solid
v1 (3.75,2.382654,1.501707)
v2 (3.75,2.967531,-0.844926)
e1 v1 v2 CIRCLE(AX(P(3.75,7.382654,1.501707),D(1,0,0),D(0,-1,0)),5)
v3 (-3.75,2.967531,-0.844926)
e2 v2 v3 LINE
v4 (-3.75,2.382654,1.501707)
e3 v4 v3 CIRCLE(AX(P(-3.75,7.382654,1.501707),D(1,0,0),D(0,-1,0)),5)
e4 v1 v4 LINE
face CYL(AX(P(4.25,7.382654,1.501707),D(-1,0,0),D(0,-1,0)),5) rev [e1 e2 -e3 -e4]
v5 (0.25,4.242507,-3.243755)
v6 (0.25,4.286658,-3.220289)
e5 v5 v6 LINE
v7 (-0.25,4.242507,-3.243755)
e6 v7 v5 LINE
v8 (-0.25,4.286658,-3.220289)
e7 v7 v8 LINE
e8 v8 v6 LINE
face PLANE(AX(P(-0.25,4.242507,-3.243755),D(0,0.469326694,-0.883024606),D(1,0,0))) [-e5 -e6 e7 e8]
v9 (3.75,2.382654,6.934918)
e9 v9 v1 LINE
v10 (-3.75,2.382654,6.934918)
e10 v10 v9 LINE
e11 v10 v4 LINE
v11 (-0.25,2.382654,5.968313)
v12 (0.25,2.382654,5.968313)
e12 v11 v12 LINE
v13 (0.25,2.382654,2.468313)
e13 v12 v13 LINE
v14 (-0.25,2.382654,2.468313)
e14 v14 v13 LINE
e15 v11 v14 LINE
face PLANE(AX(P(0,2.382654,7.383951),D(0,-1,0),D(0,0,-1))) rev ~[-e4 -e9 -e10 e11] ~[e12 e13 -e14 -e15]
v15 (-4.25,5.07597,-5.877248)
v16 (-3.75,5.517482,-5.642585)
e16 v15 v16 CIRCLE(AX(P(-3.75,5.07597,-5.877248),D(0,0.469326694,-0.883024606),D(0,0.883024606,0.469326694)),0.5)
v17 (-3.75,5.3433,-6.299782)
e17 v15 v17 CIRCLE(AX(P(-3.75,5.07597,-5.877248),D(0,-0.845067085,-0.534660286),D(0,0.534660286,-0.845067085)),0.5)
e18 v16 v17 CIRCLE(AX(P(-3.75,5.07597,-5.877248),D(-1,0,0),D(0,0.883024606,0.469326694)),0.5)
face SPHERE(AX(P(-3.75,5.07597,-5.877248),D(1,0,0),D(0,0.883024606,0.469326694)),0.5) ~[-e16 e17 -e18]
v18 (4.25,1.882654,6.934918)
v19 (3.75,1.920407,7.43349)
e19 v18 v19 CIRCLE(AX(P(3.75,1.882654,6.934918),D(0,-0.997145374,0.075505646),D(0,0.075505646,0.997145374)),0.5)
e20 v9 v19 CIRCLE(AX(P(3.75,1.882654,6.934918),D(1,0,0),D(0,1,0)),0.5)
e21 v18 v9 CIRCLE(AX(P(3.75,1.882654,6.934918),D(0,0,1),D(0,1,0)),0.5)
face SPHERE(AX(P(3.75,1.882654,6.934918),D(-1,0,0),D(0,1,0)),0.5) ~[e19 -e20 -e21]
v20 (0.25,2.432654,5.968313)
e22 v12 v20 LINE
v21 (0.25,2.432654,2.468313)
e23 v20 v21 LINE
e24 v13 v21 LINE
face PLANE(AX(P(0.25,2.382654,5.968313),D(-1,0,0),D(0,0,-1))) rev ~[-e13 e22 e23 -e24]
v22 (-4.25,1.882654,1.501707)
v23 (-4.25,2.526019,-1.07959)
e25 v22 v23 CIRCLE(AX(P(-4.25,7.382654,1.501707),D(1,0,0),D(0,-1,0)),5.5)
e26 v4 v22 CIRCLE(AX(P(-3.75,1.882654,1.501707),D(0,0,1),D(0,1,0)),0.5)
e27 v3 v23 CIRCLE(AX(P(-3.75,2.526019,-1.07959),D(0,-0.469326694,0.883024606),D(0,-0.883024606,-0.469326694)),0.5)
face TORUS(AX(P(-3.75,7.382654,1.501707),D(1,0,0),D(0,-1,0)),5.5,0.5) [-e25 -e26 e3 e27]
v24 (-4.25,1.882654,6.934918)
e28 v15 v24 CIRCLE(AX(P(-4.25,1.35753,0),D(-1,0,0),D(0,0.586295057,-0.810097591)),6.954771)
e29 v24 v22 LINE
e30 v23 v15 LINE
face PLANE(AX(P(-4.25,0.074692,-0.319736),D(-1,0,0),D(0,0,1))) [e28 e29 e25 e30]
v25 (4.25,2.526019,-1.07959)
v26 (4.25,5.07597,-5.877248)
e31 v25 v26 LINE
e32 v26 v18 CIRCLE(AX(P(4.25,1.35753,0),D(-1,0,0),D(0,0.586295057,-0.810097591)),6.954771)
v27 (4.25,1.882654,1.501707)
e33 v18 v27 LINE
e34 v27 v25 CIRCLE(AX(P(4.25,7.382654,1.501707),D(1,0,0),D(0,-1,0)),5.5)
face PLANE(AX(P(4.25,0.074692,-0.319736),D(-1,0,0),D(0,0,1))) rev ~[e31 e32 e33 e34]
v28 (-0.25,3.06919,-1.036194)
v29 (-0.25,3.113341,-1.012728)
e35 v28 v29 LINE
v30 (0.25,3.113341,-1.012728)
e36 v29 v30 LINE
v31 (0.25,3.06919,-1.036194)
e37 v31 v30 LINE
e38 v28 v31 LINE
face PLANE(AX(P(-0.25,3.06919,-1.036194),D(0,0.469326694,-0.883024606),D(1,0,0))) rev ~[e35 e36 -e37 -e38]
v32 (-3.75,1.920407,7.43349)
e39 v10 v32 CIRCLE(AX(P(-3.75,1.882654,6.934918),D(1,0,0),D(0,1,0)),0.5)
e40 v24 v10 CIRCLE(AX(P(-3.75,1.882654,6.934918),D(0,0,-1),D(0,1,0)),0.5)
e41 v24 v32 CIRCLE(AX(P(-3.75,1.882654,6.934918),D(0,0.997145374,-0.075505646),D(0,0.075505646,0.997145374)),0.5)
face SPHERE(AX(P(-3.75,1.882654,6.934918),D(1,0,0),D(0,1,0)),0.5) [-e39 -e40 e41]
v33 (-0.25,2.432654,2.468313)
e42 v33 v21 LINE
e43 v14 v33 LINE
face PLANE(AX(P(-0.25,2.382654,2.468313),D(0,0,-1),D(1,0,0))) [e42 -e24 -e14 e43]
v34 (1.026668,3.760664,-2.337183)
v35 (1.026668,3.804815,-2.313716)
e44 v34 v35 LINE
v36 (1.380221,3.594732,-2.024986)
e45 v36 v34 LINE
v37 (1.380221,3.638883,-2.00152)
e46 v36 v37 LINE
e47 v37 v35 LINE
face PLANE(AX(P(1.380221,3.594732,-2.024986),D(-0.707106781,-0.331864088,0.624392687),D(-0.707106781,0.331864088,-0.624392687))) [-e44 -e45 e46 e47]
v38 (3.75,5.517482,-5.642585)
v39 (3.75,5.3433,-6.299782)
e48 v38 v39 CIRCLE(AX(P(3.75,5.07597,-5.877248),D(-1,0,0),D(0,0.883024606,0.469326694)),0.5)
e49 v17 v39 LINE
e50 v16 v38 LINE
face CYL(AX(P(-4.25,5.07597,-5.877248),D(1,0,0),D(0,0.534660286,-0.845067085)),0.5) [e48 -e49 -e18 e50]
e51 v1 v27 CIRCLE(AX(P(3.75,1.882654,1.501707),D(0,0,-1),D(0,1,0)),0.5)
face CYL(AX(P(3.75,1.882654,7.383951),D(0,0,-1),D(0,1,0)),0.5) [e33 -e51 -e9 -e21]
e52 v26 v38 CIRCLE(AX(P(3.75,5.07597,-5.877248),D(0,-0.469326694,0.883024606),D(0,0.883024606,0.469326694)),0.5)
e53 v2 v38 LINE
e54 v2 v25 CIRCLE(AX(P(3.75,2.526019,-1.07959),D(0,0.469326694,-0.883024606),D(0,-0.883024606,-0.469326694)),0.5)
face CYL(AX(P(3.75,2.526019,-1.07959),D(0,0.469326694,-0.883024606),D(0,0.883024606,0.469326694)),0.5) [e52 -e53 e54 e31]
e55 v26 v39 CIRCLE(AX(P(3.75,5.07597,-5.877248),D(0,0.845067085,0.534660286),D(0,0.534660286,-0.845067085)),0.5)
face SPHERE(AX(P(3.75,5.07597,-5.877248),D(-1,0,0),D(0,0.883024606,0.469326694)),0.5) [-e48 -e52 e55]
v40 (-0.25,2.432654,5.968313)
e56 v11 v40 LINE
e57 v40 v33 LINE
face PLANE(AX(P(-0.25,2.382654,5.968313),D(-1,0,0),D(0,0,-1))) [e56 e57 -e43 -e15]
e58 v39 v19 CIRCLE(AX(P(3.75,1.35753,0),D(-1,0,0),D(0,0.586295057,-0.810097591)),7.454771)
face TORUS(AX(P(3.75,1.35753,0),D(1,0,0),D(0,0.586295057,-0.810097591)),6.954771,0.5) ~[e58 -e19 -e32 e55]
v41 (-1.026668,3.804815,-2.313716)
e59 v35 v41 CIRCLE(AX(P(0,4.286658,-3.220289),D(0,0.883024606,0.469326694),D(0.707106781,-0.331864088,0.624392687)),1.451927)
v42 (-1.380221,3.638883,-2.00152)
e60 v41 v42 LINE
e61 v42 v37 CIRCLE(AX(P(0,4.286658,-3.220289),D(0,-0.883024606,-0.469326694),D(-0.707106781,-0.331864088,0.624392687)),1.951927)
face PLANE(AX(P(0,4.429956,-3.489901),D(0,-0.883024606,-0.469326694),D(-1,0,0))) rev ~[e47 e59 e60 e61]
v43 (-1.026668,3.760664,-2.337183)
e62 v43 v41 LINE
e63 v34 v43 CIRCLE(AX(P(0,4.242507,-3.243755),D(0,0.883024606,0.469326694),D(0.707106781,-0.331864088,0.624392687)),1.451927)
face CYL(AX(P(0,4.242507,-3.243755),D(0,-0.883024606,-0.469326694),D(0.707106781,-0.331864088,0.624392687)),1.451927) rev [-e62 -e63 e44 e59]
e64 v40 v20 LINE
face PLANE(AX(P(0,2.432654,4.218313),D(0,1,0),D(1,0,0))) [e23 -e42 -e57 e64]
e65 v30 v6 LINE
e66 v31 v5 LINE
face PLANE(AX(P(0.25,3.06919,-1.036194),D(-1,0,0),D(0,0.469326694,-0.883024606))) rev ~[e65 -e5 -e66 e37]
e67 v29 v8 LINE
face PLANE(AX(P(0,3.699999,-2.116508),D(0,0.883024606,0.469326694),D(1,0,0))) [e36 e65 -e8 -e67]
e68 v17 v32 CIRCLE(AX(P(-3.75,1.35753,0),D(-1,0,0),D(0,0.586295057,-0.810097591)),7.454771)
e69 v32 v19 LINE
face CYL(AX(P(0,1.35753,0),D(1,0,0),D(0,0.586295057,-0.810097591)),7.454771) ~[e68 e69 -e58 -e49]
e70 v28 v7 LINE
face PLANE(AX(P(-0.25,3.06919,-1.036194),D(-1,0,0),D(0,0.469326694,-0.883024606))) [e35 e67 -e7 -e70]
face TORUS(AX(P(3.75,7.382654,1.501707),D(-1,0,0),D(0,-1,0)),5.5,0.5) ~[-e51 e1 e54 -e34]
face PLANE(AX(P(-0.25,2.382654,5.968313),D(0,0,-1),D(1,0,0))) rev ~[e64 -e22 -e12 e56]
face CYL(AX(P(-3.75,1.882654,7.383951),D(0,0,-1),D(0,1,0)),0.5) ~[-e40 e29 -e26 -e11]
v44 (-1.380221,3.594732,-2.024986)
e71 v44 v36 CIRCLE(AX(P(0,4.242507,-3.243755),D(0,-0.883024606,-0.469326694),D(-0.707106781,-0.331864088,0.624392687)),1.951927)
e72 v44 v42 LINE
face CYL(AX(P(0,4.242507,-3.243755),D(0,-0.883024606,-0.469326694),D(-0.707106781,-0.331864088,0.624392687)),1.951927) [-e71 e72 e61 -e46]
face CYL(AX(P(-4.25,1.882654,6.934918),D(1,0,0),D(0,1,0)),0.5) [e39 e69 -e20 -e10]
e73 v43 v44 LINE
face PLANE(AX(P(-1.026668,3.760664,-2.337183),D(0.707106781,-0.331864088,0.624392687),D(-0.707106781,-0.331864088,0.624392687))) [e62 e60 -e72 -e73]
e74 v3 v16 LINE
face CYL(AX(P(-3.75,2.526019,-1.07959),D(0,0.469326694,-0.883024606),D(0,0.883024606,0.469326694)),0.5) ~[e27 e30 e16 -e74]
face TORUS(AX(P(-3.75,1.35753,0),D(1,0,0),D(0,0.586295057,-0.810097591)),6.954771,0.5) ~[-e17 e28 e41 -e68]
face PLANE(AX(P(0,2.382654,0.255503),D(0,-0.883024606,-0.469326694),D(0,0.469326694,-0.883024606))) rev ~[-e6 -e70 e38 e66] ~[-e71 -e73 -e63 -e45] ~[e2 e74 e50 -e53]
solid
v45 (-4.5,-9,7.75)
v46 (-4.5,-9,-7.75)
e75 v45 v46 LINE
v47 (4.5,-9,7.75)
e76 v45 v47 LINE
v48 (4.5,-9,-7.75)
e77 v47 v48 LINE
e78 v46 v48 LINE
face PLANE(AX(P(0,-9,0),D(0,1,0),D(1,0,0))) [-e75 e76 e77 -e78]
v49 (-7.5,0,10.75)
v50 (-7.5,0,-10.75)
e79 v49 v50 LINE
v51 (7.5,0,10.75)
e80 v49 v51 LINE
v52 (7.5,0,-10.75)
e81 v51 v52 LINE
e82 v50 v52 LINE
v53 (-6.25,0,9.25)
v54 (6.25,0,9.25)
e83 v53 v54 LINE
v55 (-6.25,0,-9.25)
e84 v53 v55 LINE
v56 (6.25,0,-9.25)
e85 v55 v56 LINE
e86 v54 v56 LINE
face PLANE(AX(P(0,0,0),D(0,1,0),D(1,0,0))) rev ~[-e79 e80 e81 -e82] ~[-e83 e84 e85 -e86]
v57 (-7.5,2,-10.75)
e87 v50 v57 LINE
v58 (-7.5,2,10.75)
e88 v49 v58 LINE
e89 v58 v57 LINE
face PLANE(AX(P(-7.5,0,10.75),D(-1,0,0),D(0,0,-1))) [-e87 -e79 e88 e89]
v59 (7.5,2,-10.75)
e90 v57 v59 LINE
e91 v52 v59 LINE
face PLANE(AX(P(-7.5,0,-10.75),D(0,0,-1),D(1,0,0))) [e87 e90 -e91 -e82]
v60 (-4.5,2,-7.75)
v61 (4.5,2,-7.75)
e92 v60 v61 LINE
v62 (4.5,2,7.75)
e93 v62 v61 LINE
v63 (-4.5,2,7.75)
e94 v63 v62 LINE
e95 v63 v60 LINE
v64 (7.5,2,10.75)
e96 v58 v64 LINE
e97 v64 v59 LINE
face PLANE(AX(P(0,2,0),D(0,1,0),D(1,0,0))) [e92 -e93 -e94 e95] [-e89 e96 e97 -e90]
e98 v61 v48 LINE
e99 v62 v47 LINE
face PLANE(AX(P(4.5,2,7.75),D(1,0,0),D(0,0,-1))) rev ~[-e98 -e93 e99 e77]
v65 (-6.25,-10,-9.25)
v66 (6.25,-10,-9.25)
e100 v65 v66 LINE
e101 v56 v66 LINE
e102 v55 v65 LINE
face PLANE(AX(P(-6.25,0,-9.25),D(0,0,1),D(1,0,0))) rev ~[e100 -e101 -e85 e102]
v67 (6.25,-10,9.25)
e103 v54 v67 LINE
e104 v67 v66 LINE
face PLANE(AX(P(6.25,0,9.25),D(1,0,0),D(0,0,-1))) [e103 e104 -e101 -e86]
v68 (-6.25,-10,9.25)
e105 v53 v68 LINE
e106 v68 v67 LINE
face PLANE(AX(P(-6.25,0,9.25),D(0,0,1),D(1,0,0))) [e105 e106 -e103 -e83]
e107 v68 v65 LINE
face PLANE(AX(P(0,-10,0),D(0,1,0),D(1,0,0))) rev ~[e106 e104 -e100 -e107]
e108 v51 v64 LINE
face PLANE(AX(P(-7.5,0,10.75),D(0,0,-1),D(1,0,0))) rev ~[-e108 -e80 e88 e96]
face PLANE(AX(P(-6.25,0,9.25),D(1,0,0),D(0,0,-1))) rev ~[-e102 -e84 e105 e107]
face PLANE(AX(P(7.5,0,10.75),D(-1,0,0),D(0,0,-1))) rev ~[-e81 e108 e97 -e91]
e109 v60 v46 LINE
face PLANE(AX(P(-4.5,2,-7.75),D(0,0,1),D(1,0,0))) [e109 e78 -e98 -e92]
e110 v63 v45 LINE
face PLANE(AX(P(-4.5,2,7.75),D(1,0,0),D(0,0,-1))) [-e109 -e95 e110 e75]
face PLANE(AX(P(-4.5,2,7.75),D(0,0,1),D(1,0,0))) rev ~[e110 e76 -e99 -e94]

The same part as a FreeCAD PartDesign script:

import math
import FreeCAD as App
import Part
import Sketcher


def edges_at(feature, points):
    """Names of the edges that pass closest to the given points."""
    edges = feature.Shape.Edges
    near = lambda p: min(range(len(edges)), key=lambda i: edges[i].distToShape(Part.Vertex(*p))[0])
    return sorted({f"Edge{near(p) + 1}" for p in points})


def add_polygon(sketch, points):
    """Adds a closed chain of lines whose ends are joined by coincident constraints."""
    first, n = sketch.GeometryCount, len(points)
    for a, b in zip(points, points[1:] + points[:1]):
        sketch.addGeometry(Part.LineSegment(App.Vector(*a, 0), App.Vector(*b, 0)), False)
    for i in range(n):
        sketch.addConstraint(Sketcher.Constraint("Coincident", first + i, 2, first + (i + 1) % n, 1))

doc = App.newDocument("Part")
body = doc.addObject("PartDesign::Body", "Body")

# Sketch on XZ plane
sketch1 = doc.addObject("Sketcher::SketchObject", "Sketch")
body.addObject(sketch1)
sketch1.AttachmentSupport = (doc.XZ_Plane, [""])
sketch1.MapMode = "FlatFace"
add_polygon(sketch1, [(-6, -9), (-6, 9), (6, 9), (6, -9)])  # lines 0-3
sketch1.addConstraint([
    Sketcher.Constraint("Vertical", 0),
    Sketcher.Constraint("Horizontal", 1),
    Sketcher.Constraint("Vertical", 2),
    Sketcher.Constraint("Horizontal", 3),
    Sketcher.Constraint("Symmetric", 0, 2, 2, 2, -1, 1),
    Sketcher.Constraint("DistanceX", 1, 1, 1, 2, 12.5),
    Sketcher.Constraint("DistanceY", 0, 1, 0, 2, 18.5),
])
pad1 = doc.addObject("PartDesign::Pad", "Pad")
body.addObject(pad1)
pad1.Profile = sketch1
pad1.Length = 10

# Sketch on XZ plane
sketch2 = doc.addObject("Sketcher::SketchObject", "Sketch001")
body.addObject(sketch2)
sketch2.AttachmentSupport = (doc.XZ_Plane, [""])
sketch2.MapMode = "FlatFace"
add_polygon(sketch2, [(-8, -11), (-8, 11), (8, 11), (8, -11)])  # lines 0-3
sketch2.addConstraint([
    Sketcher.Constraint("Vertical", 0),
    Sketcher.Constraint("Horizontal", 1),
    Sketcher.Constraint("Vertical", 2),
    Sketcher.Constraint("Horizontal", 3),
    Sketcher.Constraint("Symmetric", 0, 2, 2, 2, -1, 1),
    Sketcher.Constraint("DistanceX", 1, 1, 1, 2, 15.0),
    Sketcher.Constraint("DistanceY", 0, 1, 0, 2, 21.5),
])
pad2 = doc.addObject("PartDesign::Pad", "Pad001")
body.addObject(pad2)
pad2.Profile = sketch2
pad2.Length = 2
pad2.Reversed = True

# Sketch on XZ plane
sketch3 = doc.addObject("Sketcher::SketchObject", "Sketch002")
body.addObject(sketch3)
sketch3.AttachmentSupport = (doc.XZ_Plane, [""])
sketch3.MapMode = "FlatFace"
sketch3.AttachmentOffset = App.Placement(App.Vector(0, 0, -2), App.Rotation())
add_polygon(sketch3, [(-4, -8), (-4, 8), (4, 8), (4, -8)])  # lines 0-3
sketch3.addConstraint([
    Sketcher.Constraint("Vertical", 0),
    Sketcher.Constraint("Horizontal", 1),
    Sketcher.Constraint("Vertical", 2),
    Sketcher.Constraint("Horizontal", 3),
    Sketcher.Constraint("Symmetric", 0, 2, 2, 2, -1, 1),
    Sketcher.Constraint("DistanceX", 1, 1, 1, 2, 9.0),
    Sketcher.Constraint("DistanceY", 0, 1, 0, 2, 15.5),
])
pocket1 = doc.addObject("PartDesign::Pocket", "Pocket")
body.addObject(pocket1)
pocket1.Profile = sketch3
pocket1.Length = 11
pocket1.Reversed = True
body2 = doc.addObject("PartDesign::Body", "Body001")

# Sketch on YZ plane
sketch4 = doc.addObject("Sketcher::SketchObject", "Sketch003")
body2.addObject(sketch4)
sketch4.AttachmentSupport = (doc.getObject("YZ_Plane001"), [""])
sketch4.MapMode = "FlatFace"
sketch4.addGeometry([
    Part.LineSegment(App.Vector(2, 0, 0), App.Vector(2, 7, 0)),
    Part.ArcOfCircle(Part.Circle(App.Vector(1, 0, 0), App.Vector(0, 0, 1), 7), math.radians(82), math.radians(306)),
    Part.LineSegment(App.Vector(6, -6, 0), App.Vector(2, 0, 0)),
], False)
sketch4.addConstraint([
    Sketcher.Constraint("Coincident", 0, 2, 1, 1),
    Sketcher.Constraint("Coincident", 1, 2, 2, 1),
    Sketcher.Constraint("Coincident", 2, 2, 0, 1),
    Sketcher.Constraint("Vertical", 0),
    Sketcher.Constraint("PointOnObject", 1, 3, -1),
    Sketcher.Constraint("Radius", 1, 7.454771),
    Sketcher.Constraint("DistanceY", 0, 1, 0, 2, 7.128448),
    Sketcher.Constraint("Distance", 2, 7.128448),
    Sketcher.Constraint("DistanceX", -1, 1, 1, 3, 1.35753),
    Sketcher.Constraint("DistanceY", -1, 1, 0, 2, 7.383951),
])
pad3 = doc.addObject("PartDesign::Pad", "Pad002")
body2.addObject(pad3)
pad3.Profile = sketch4
pad3.Length = 8.5
pad3.Midplane = True
doc.recompute()

fillet = doc.addObject("PartDesign::Fillet", "Fillet")
body2.addObject(fillet)
fillet.Base = (pad3, edges_at(pad3, [(0, 2.383, 0.256)]))
fillet.Radius = 5
doc.recompute()

fillet2 = doc.addObject("PartDesign::Fillet", "Fillet001")
body2.addObject(fillet2)
fillet2.Base = (fillet, ["Edge1"])
fillet2.UseAllEdges = True
fillet2.Radius = 0.5

# Sketch on XZ plane
sketch5 = doc.addObject("Sketcher::SketchObject", "Sketch004")
body2.addObject(sketch5)
sketch5.AttachmentSupport = (doc.getObject("XZ_Plane001"), [""])
sketch5.MapMode = "FlatFace"
sketch5.AttachmentOffset = App.Placement(App.Vector(0, 0, -2.382654), App.Rotation())
add_polygon(sketch5, [(-0.2, 2.5), (-0.2, 6), (0.2, 6), (0.2, 2.5)])  # lines 0-3
sketch5.addConstraint([
    Sketcher.Constraint("Vertical", 0),
    Sketcher.Constraint("Horizontal", 1),
    Sketcher.Constraint("Vertical", 2),
    Sketcher.Constraint("Horizontal", 3),
    Sketcher.Constraint("DistanceX", 1, 1, 1, 2, 0.5),
    Sketcher.Constraint("DistanceY", 0, 1, 0, 2, 3.5),
    Sketcher.Constraint("DistanceX", 0, 2, -1, 1, 0.25),
    Sketcher.Constraint("DistanceY", -1, 1, 0, 2, 5.968313),
])
pad4 = doc.addObject("PartDesign::Pad", "Pad003")
body2.addObject(pad4)
pad4.Profile = sketch5
pad4.Length = 0.05
pad4.Reversed = True

# Sketch on an angled plane
sketch6 = doc.addObject("Sketcher::SketchObject", "Sketch005")
body2.addObject(sketch6)
sketch6.Placement = App.Placement(App.Vector(0, 1.96372, 1.043715), App.Rotation(App.Vector(1, 0, 0), App.Vector(0, 0.469326694, -0.883024606), App.Vector(0, 0.883024606, 0.469326694), "ZXY"))
sketch6.addGeometry(Part.LineSegment(App.Vector(-1.4, 3.5, 0), App.Vector(-1, 3.8, 0)), False)  # 0
sketch6.addGeometry(Part.ArcOfCircle(Part.Circle(App.Vector(0, 4.9, 0), App.Vector(0, 0, 1), 1.5), math.radians(-45), math.radians(225)), False)  # 1
sketch6.addGeometry(Part.LineSegment(App.Vector(1, 3.8, 0), App.Vector(1.4, 3.5, 0)), False)  # 2
sketch6.addGeometry(Part.ArcOfCircle(Part.Circle(App.Vector(0, 4.9, 0), App.Vector(0, 0, 1), 2), math.radians(-45), math.radians(225)), False)  # 3
add_polygon(sketch6, [(-0.2, 4.9), (-0.2, 2.4), (0.2, 2.4), (0.2, 4.9)])  # lines 4-7
sketch6.addConstraint([
    Sketcher.Constraint("Coincident", 0, 2, 1, 2),
    Sketcher.Constraint("Coincident", 1, 1, 2, 1),
    Sketcher.Constraint("Coincident", 2, 2, 3, 1),
    Sketcher.Constraint("Coincident", 3, 2, 0, 1),
    Sketcher.Constraint("Vertical", 4),
    Sketcher.Constraint("Horizontal", 5),
    Sketcher.Constraint("Vertical", 6),
    Sketcher.Constraint("Horizontal", 7),
    Sketcher.Constraint("Coincident", 3, 3, 1, 3),
    Sketcher.Constraint("Symmetric", 0, 2, 1, 1, -2),
    Sketcher.Constraint("Perpendicular", 0, 2),
    Sketcher.Constraint("Horizontal", 2, 2, 3, 2),
    Sketcher.Constraint("Horizontal", 3, 3, 6, 2),
    Sketcher.Constraint("DistanceX", 5, 1, 5, 2, 0.5),
    Sketcher.Constraint("DistanceY", 4, 2, 4, 1, 2.5),
    Sketcher.Constraint("Distance", 0, 0.5),
    Sketcher.Constraint("DistanceX", 4, 2, -1, 1, 0.25),
    Sketcher.Constraint("Radius", 1, 1.451927),
    Sketcher.Constraint("DistanceY", -1, 1, 0, 2, 3.82877),
    Sketcher.Constraint("DistanceX", -1, 1, 2, 2, 1.380221),
])
pad5 = doc.addObject("PartDesign::Pad", "Pad004")
body2.addObject(pad5)
pad5.Profile = sketch6
pad5.Length = 0.05

doc.recompute()
